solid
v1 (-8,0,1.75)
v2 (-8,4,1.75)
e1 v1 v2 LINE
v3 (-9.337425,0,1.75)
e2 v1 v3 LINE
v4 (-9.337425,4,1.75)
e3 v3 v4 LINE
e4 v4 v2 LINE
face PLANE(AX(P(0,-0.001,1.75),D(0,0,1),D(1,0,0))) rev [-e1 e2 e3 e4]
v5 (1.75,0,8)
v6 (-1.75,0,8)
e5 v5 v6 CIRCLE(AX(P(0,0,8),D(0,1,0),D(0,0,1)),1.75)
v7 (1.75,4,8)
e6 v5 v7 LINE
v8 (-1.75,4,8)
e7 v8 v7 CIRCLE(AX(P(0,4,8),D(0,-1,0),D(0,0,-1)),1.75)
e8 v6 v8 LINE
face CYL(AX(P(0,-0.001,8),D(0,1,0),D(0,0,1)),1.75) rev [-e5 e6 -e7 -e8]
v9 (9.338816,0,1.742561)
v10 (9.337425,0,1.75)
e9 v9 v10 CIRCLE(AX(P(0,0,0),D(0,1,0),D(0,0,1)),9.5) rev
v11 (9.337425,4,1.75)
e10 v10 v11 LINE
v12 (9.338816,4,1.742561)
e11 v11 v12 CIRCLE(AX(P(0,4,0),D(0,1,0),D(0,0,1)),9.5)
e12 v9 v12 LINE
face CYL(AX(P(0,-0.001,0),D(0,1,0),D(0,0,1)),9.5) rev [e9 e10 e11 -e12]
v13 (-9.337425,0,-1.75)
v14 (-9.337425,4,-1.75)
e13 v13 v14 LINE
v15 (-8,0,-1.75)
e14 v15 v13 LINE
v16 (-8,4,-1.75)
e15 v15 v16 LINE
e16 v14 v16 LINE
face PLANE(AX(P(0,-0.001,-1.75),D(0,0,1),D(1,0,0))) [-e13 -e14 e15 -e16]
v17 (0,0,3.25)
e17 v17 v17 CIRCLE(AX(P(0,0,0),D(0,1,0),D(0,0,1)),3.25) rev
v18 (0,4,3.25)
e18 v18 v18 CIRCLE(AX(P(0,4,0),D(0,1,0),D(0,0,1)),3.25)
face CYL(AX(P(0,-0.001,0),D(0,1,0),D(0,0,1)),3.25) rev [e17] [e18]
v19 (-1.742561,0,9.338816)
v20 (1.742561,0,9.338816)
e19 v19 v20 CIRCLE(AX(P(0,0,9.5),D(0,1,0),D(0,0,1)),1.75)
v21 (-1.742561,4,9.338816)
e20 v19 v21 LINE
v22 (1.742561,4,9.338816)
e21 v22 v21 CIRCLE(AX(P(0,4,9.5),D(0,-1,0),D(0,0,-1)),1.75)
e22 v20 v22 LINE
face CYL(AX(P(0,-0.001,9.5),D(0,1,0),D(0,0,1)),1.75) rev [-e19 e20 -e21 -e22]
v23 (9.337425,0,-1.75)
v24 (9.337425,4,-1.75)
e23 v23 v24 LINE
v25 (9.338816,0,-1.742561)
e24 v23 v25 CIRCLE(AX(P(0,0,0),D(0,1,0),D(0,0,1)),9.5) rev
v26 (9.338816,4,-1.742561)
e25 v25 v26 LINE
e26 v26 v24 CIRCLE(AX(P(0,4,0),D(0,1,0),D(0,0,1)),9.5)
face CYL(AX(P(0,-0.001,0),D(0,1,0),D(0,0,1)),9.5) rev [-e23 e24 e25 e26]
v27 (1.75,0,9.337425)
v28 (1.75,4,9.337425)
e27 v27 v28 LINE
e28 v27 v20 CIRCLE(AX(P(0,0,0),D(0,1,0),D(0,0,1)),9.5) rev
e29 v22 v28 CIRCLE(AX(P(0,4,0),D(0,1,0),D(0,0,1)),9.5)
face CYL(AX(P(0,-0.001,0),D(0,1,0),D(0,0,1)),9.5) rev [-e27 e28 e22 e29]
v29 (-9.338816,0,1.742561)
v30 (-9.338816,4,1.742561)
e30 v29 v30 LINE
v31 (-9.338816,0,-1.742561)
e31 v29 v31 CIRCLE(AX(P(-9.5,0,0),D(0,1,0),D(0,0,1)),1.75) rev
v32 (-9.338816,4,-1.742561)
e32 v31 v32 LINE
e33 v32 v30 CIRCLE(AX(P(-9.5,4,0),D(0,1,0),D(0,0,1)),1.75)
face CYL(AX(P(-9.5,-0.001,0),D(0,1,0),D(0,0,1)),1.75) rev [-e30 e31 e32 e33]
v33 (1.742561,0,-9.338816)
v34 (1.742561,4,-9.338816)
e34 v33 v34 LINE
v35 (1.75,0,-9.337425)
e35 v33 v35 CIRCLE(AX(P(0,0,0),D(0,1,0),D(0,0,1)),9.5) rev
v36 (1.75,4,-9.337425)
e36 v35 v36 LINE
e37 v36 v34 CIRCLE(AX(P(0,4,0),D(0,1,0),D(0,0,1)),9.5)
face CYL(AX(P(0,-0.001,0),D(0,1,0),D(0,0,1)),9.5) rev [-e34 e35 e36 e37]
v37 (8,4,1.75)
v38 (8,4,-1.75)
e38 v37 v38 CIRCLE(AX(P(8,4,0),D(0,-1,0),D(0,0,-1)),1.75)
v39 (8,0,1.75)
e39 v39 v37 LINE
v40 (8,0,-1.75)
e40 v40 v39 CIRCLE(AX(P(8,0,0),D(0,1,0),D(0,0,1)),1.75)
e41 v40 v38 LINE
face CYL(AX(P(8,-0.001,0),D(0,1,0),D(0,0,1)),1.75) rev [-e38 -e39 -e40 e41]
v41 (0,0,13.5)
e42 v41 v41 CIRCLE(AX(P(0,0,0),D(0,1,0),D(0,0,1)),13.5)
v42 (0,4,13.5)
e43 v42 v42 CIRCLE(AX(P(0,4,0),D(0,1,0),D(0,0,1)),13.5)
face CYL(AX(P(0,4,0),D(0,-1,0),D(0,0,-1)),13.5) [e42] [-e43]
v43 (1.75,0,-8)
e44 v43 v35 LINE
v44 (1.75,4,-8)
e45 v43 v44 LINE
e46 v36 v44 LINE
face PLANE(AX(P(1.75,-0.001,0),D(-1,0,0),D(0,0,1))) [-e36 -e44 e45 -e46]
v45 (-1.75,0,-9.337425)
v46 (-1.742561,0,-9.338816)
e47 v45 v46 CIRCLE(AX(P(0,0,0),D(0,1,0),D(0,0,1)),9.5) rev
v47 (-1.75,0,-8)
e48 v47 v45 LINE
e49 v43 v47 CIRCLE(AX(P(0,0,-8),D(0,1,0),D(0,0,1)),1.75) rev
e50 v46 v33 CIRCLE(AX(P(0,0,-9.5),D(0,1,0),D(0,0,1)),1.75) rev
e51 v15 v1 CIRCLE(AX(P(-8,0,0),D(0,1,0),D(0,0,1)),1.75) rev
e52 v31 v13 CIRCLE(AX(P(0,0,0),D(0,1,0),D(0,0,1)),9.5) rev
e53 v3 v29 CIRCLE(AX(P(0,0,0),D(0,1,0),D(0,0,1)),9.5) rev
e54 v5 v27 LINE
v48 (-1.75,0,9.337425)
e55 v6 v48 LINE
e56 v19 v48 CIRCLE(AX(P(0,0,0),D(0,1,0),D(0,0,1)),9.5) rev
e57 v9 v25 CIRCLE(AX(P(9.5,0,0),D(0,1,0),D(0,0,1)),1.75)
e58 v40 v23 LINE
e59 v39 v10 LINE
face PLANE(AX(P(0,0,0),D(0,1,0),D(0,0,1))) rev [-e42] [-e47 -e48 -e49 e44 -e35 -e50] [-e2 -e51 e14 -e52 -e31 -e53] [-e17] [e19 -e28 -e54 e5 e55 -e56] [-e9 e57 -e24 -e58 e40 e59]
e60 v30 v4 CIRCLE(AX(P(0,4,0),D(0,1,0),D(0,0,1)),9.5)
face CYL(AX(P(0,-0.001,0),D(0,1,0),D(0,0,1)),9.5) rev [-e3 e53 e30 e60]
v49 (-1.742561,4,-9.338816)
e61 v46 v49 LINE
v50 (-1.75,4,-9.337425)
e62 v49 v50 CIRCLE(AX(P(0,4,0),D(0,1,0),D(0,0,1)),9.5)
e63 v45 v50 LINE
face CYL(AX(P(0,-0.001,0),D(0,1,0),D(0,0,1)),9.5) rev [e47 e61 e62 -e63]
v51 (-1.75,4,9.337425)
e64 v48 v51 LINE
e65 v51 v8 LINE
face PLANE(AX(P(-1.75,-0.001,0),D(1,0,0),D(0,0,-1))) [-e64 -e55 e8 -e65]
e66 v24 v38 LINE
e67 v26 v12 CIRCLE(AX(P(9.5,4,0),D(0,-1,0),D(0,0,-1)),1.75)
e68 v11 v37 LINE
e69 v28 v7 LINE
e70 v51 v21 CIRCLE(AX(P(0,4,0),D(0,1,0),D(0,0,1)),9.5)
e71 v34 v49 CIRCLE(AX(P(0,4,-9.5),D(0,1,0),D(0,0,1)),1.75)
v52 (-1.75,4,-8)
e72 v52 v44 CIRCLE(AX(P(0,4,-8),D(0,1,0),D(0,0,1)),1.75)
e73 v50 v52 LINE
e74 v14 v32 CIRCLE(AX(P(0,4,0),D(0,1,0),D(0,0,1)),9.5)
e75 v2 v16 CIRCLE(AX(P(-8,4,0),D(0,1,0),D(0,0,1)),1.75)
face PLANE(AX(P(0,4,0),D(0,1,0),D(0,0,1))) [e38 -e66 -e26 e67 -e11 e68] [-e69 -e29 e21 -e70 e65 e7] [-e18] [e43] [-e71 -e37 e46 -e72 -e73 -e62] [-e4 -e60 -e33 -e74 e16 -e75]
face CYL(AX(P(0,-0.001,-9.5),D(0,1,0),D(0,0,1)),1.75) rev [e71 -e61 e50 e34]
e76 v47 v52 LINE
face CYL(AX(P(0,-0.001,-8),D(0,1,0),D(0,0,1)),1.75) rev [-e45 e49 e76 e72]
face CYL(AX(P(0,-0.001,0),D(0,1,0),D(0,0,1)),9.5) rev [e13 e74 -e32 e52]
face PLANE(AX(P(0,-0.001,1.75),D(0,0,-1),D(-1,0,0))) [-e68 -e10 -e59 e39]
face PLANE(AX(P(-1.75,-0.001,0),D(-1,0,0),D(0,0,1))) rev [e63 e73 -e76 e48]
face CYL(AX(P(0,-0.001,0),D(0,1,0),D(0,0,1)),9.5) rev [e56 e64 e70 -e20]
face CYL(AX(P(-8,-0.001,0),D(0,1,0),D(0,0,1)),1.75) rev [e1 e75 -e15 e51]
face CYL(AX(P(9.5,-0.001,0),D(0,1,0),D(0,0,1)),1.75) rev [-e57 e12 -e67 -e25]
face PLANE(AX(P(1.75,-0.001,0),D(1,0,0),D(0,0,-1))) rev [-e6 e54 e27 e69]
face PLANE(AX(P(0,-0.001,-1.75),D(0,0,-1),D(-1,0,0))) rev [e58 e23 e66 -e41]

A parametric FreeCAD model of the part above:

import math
import FreeCAD as App
import Part
import Sketcher

V = App.Vector
Q = App.Units.Quantity

doc = App.newDocument("Part")
body = doc.addObject("PartDesign::Body", "Body")

sketch1 = body.newObject("Sketcher::SketchObject", "Sketch")
sketch1.AttachmentSupport = (doc.getObject("XZ_Plane"), [""])
sketch1.MapMode = "FlatFace"
sketch1.addGeometry(Part.Circle(V(0, 0, 0), V(0, 0, 1), 13.5), False)
sketch1.addConstraint([
    Sketcher.Constraint("Coincident", 0, 3, -1, 1),
    Sketcher.Constraint("Diameter", 0, Q("27 mm")),
])
pad1 = body.newObject("PartDesign::Pad", "Pad")
pad1.Profile = sketch1
pad1.Length = 4
pad1.Reversed = True

sketch2 = body.newObject("Sketcher::SketchObject", "Sketch001")
sketch2.AttachmentSupport = (doc.getObject("XZ_Plane"), [""])
sketch2.MapMode = "FlatFace"
sketch2.AttachmentOffset = App.Placement(V(0, 0, -4), App.Rotation())
sketch2.addGeometry([
    Part.LineSegment(V(-9.337425, 1.75, 0), V(-8, 1.75, 0)),
    Part.ArcOfCircle(Part.Circle(V(-8, 0, 0), V(0, 0, 1), 1.75), math.radians(-90), math.radians(90)),
    Part.LineSegment(V(-8, -1.75, 0), V(-9.337425, -1.75, 0)),
    Part.ArcOfCircle(Part.Circle(V(-0.009484, -0.001773, 0), V(0, 0, 1), 9.490352), math.radians(-169.430557), math.radians(-169.384869)),
    Part.ArcOfCircle(Part.Circle(V(-9.5, 0, 0), V(0, 0, 1), 1.75), math.radians(84.715267), math.radians(275.284733)),
    Part.ArcOfCircle(Part.Circle(V(-0.009484, 0.001773, 0), V(0, 0, 1), 9.490352), math.radians(169.384869), math.radians(169.430557)),
], False)
sketch2.addConstraint([
    Sketcher.Constraint("Tangent", 0, 2, 1, 2),
    Sketcher.Constraint("Tangent", 1, 1, 2, 1),
    Sketcher.Constraint("Coincident", 2, 2, 3, 2),
    Sketcher.Constraint("Coincident", 3, 1, 4, 2),
    Sketcher.Constraint("Coincident", 4, 1, 5, 2),
    Sketcher.Constraint("Coincident", 5, 1, 0, 1),
    Sketcher.Constraint("Horizontal", 0),
    Sketcher.Constraint("Horizontal", 2),
    Sketcher.Constraint("Equal", 1, 4),
    Sketcher.Constraint("Equal", 3, 5),
    Sketcher.Constraint("Symmetric", 3, 3, 5, 3, -1),
    Sketcher.Constraint("PointOnObject", 1, 3, -1),
    Sketcher.Constraint("PointOnObject", 4, 3, -1),
    Sketcher.Constraint("Radius", 1, Q("1.75 mm")),
    Sketcher.Constraint("DistanceX", 1, 3, -1, 1, Q("8 mm")),
    Sketcher.Constraint("DistanceX", 4, 3, -1, 1, Q("9.5 mm")),
    Sketcher.Constraint("Radius", 3, Q("9.490352 mm")),
    Sketcher.Constraint("DistanceX", 0, 1, 0, 2, Q("1.337425 mm")),
    Sketcher.Constraint("DistanceX", 2, 2, 3, 3, Q("9.327941 mm")),
])
pocket1 = body.newObject("PartDesign::Pocket", "Pocket")
pocket1.Profile = sketch2
pocket1.Type = "UpToFirst"
pocket1.Reversed = True

sketch3 = body.newObject("Sketcher::SketchObject", "Sketch002")
sketch3.AttachmentSupport = (doc.getObject("XZ_Plane"), [""])
sketch3.MapMode = "FlatFace"
sketch3.AttachmentOffset = App.Placement(V(0, 0, -4), App.Rotation())
sketch3.addGeometry([
    Part.ArcOfCircle(Part.Circle(V(0.001773, -0.009484, 0), V(0, 0, 1), 9.490352), math.radians(-79.430557), math.radians(-79.384869)),
    Part.ArcOfCircle(Part.Circle(V(0, -9.5, 0), V(0, 0, 1), 1.75), math.radians(174.715267), math.radians(365.284733)),
    Part.ArcOfCircle(Part.Circle(V(-0.001773, -0.009484, 0), V(0, 0, 1), 9.490352), math.radians(-100.615131), math.radians(-100.569443)),
    Part.LineSegment(V(-1.75, -9.337425, 0), V(-1.75, -8, 0)),
    Part.ArcOfCircle(Part.Circle(V(0, -8, 0), V(0, 0, 1), 1.75), math.radians(0), math.radians(180)),
    Part.LineSegment(V(1.75, -8, 0), V(1.75, -9.337425, 0)),
], False)
sketch3.addConstraint([
    Sketcher.Constraint("Coincident", 0, 1, 1, 2),
    Sketcher.Constraint("Coincident", 1, 1, 2, 2),
    Sketcher.Constraint("Coincident", 2, 1, 3, 1),
    Sketcher.Constraint("Tangent", 3, 2, 4, 2),
    Sketcher.Constraint("Tangent", 4, 1, 5, 1),
    Sketcher.Constraint("Coincident", 5, 2, 0, 2),
    Sketcher.Constraint("Vertical", 3),
    Sketcher.Constraint("Vertical", 5),
    Sketcher.Constraint("Equal", 0, 2),
    Sketcher.Constraint("Equal", 1, 4),
    Sketcher.Constraint("Symmetric", 0, 3, 2, 3, -2),
    Sketcher.Constraint("PointOnObject", 1, 3, -2),
    Sketcher.Constraint("PointOnObject", 4, 3, -2),
    Sketcher.Constraint("Radius", 1, Q("1.75 mm")),
    Sketcher.Constraint("DistanceY", 4, 3, -1, 1, Q("8 mm")),
    Sketcher.Constraint("DistanceY", 1, 3, -1, 1, Q("9.5 mm")),
    Sketcher.Constraint("Radius", 0, Q("9.490352 mm")),
    Sketcher.Constraint("DistanceY", 3, 1, 3, 2, Q("1.337425 mm")),
    Sketcher.Constraint("DistanceY", 2, 1, 2, 3, Q("9.327941 mm")),
])
pocket2 = body.newObject("PartDesign::Pocket", "Pocket001")
pocket2.Profile = sketch3
pocket2.Type = "UpToFirst"
pocket2.Reversed = True

sketch4 = body.newObject("Sketcher::SketchObject", "Sketch003")
sketch4.AttachmentSupport = (doc.getObject("XZ_Plane"), [""])
sketch4.MapMode = "FlatFace"
sketch4.AttachmentOffset = App.Placement(V(0, 0, -4), App.Rotation())
sketch4.addGeometry([
    Part.ArcOfCircle(Part.Circle(V(0, 9.5, 0), V(0, 0, 1), 1.75), math.radians(-5.284733), math.radians(185.284733)),
    Part.ArcOfCircle(Part.Circle(V(0.001773, 0.009484, 0), V(0, 0, 1), 9.490352), math.radians(79.384869), math.radians(79.430557)),
    Part.LineSegment(V(1.75, 9.337425, 0), V(1.75, 8, 0)),
    Part.ArcOfCircle(Part.Circle(V(0, 8, 0), V(0, 0, 1), 1.75), math.radians(180), math.radians(360)),
    Part.LineSegment(V(-1.75, 8, 0), V(-1.75, 9.337425, 0)),
    Part.ArcOfCircle(Part.Circle(V(-0.001773, 0.009484, 0), V(0, 0, 1), 9.490352), math.radians(100.569443), math.radians(100.615131)),
], False)
sketch4.addConstraint([
    Sketcher.Constraint("Coincident", 0, 1, 1, 2),
    Sketcher.Constraint("Coincident", 1, 1, 2, 1),
    Sketcher.Constraint("Tangent", 2, 2, 3, 2),
    Sketcher.Constraint("Tangent", 3, 1, 4, 1),
    Sketcher.Constraint("Coincident", 4, 2, 5, 2),
    Sketcher.Constraint("Coincident", 5, 1, 0, 2),
    Sketcher.Constraint("Vertical", 2),
    Sketcher.Constraint("Vertical", 4),
    Sketcher.Constraint("Equal", 0, 3),
    Sketcher.Constraint("Equal", 1, 5),
    Sketcher.Constraint("Symmetric", 1, 3, 5, 3, -2),
    Sketcher.Constraint("PointOnObject", 0, 3, -2),
    Sketcher.Constraint("PointOnObject", 3, 3, -2),
    Sketcher.Constraint("Radius", 0, Q("1.75 mm")),
    Sketcher.Constraint("DistanceY", -1, 1, 3, 3, Q("8 mm")),
    Sketcher.Constraint("DistanceY", -1, 1, 0, 3, Q("9.5 mm")),
    Sketcher.Constraint("Radius", 1, Q("9.490352 mm")),
    Sketcher.Constraint("DistanceY", 2, 2, 2, 1, Q("1.337425 mm")),
    Sketcher.Constraint("DistanceY", 1, 3, 1, 1, Q("9.327941 mm")),
])
pocket3 = body.newObject("PartDesign::Pocket", "Pocket002")
pocket3.Profile = sketch4
pocket3.Type = "UpToFirst"
pocket3.Reversed = True

sketch5 = body.newObject("Sketcher::SketchObject", "Sketch004")
sketch5.AttachmentSupport = (doc.getObject("XZ_Plane"), [""])
sketch5.MapMode = "FlatFace"
sketch5.AttachmentOffset = App.Placement(V(0, 0, -4), App.Rotation())
sketch5.addGeometry([
    Part.ArcOfCircle(Part.Circle(V(0.009484, 0.001773, 0), V(0, 0, 1), 9.490352), math.radians(10.569443), math.radians(10.615131)),
    Part.ArcOfCircle(Part.Circle(V(9.5, 0, 0), V(0, 0, 1), 1.75), math.radians(-95.284733), math.radians(95.284733)),
    Part.ArcOfCircle(Part.Circle(V(0.009484, -0.001773, 0), V(0, 0, 1), 9.490352), math.radians(-10.615131), math.radians(-10.569443)),
    Part.LineSegment(V(9.337425, -1.75, 0), V(8, -1.75, 0)),
    Part.ArcOfCircle(Part.Circle(V(8, 0, 0), V(0, 0, 1), 1.75), math.radians(90), math.radians(270)),
    Part.LineSegment(V(8, 1.75, 0), V(9.337425, 1.75, 0)),
], False)
sketch5.addConstraint([
    Sketcher.Constraint("Coincident", 0, 1, 1, 2),
    Sketcher.Constraint("Coincident", 1, 1, 2, 2),
    Sketcher.Constraint("Coincident", 2, 1, 3, 1),
    Sketcher.Constraint("Tangent", 3, 2, 4, 2),
    Sketcher.Constraint("Tangent", 4, 1, 5, 1),
    Sketcher.Constraint("Coincident", 5, 2, 0, 2),
    Sketcher.Constraint("Horizontal", 3),
    Sketcher.Constraint("Horizontal", 5),
    Sketcher.Constraint("Equal", 0, 2),
    Sketcher.Constraint("Equal", 1, 4),
    Sketcher.Constraint("Symmetric", 0, 3, 2, 3, -1),
    Sketcher.Constraint("PointOnObject", 1, 3, -1),
    Sketcher.Constraint("PointOnObject", 4, 3, -1),
    Sketcher.Constraint("Radius", 1, Q("1.75 mm")),
    Sketcher.Constraint("DistanceX", -1, 1, 4, 3, Q("8 mm")),
    Sketcher.Constraint("DistanceX", -1, 1, 1, 3, Q("9.5 mm")),
    Sketcher.Constraint("Radius", 0, Q("9.490352 mm")),
    Sketcher.Constraint("DistanceX", 3, 2, 3, 1, Q("1.337425 mm")),
    Sketcher.Constraint("DistanceX", 2, 3, 2, 1, Q("9.327941 mm")),
])
pocket4 = body.newObject("PartDesign::Pocket", "Pocket003")
pocket4.Profile = sketch5
pocket4.Type = "UpToFirst"
pocket4.Reversed = True

sketch6 = body.newObject("Sketcher::SketchObject", "Sketch005")
sketch6.AttachmentSupport = (doc.getObject("XZ_Plane"), [""])
sketch6.MapMode = "FlatFace"
sketch6.AttachmentOffset = App.Placement(V(0, 0, -4), App.Rotation())
sketch6.addGeometry(Part.Circle(V(0, 0, 0), V(0, 0, 1), 3.25), False)
sketch6.addConstraint([
    Sketcher.Constraint("Coincident", 0, 3, -1, 1),
    Sketcher.Constraint("Diameter", 0, Q("6.5 mm")),
])
pocket5 = body.newObject("PartDesign::Pocket", "Pocket004")
pocket5.Profile = sketch6
pocket5.Type = "UpToFirst"
pocket5.Reversed = True

doc.recompute()
